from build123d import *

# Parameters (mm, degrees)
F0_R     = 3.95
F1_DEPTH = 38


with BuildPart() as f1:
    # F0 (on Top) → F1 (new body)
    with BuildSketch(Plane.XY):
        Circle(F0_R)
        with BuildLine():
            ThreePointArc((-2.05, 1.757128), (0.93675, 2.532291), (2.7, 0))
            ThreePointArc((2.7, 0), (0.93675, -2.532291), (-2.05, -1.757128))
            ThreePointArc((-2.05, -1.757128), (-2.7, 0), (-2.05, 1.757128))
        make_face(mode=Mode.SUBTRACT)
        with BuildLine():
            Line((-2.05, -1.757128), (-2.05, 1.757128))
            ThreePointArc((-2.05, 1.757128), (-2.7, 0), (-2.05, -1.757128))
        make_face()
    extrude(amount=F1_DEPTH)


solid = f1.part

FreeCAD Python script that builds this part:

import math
import FreeCAD as App
import Part
import Sketcher
from FreeCAD import Vector
Q = App.Units.Quantity

doc = App.newDocument("Part")
body = doc.addObject("PartDesign::Body", "Body")

sketch1 = body.newObject("Sketcher::SketchObject", "Sketch")
sketch1.AttachmentSupport = (doc.getObject("XY_Plane"), [""])
sketch1.MapMode = "FlatFace"
sketch1.addGeometry([
    Part.Circle(Vector(0, 0, 0), Vector(0, 0, 1), 3.95),
    Part.ArcOfCircle(Part.Circle(Vector(0, 0, 0), Vector(0, 0, 1), 2.7), math.radians(-139.398939), math.radians(-0.000007)),
    Part.LineSegment(Vector(-2.05, -1.757128, 0), Vector(-2.05, 1.757128, 0)),
    Part.ArcOfCircle(Part.Circle(Vector(0, 0, 0), Vector(0, 0, 1), 2.7), math.radians(0.000007), math.radians(139.398939)),
], False)
sketch1.addConstraint([
    Sketcher.Constraint("Coincident", 1, 1, 2, 1),
    Sketcher.Constraint("Coincident", 2, 2, 3, 2),
    Sketcher.Constraint("Tangent", 3, 1, 1, 2),
    Sketcher.Constraint("Vertical", 2),
    Sketcher.Constraint("Coincident", 0, 3, -1, 1),
    Sketcher.Constraint("Coincident", 1, 3, -1, 1),
    Sketcher.Constraint("Equal", 1, 3),
    Sketcher.Constraint("PointOnObject", 3, 1, -1),
    Sketcher.Constraint("Diameter", 0, Q("7.9 mm")),
    Sketcher.Constraint("Radius", 1, Q("2.7 mm")),
    Sketcher.Constraint("DistanceX", 1, 1, -1, 1, Q("2.05 mm")),
])
pad1 = body.newObject("PartDesign::Pad", "Pad")
pad1.Profile = sketch1
pad1.Length = 38

doc.recompute()
